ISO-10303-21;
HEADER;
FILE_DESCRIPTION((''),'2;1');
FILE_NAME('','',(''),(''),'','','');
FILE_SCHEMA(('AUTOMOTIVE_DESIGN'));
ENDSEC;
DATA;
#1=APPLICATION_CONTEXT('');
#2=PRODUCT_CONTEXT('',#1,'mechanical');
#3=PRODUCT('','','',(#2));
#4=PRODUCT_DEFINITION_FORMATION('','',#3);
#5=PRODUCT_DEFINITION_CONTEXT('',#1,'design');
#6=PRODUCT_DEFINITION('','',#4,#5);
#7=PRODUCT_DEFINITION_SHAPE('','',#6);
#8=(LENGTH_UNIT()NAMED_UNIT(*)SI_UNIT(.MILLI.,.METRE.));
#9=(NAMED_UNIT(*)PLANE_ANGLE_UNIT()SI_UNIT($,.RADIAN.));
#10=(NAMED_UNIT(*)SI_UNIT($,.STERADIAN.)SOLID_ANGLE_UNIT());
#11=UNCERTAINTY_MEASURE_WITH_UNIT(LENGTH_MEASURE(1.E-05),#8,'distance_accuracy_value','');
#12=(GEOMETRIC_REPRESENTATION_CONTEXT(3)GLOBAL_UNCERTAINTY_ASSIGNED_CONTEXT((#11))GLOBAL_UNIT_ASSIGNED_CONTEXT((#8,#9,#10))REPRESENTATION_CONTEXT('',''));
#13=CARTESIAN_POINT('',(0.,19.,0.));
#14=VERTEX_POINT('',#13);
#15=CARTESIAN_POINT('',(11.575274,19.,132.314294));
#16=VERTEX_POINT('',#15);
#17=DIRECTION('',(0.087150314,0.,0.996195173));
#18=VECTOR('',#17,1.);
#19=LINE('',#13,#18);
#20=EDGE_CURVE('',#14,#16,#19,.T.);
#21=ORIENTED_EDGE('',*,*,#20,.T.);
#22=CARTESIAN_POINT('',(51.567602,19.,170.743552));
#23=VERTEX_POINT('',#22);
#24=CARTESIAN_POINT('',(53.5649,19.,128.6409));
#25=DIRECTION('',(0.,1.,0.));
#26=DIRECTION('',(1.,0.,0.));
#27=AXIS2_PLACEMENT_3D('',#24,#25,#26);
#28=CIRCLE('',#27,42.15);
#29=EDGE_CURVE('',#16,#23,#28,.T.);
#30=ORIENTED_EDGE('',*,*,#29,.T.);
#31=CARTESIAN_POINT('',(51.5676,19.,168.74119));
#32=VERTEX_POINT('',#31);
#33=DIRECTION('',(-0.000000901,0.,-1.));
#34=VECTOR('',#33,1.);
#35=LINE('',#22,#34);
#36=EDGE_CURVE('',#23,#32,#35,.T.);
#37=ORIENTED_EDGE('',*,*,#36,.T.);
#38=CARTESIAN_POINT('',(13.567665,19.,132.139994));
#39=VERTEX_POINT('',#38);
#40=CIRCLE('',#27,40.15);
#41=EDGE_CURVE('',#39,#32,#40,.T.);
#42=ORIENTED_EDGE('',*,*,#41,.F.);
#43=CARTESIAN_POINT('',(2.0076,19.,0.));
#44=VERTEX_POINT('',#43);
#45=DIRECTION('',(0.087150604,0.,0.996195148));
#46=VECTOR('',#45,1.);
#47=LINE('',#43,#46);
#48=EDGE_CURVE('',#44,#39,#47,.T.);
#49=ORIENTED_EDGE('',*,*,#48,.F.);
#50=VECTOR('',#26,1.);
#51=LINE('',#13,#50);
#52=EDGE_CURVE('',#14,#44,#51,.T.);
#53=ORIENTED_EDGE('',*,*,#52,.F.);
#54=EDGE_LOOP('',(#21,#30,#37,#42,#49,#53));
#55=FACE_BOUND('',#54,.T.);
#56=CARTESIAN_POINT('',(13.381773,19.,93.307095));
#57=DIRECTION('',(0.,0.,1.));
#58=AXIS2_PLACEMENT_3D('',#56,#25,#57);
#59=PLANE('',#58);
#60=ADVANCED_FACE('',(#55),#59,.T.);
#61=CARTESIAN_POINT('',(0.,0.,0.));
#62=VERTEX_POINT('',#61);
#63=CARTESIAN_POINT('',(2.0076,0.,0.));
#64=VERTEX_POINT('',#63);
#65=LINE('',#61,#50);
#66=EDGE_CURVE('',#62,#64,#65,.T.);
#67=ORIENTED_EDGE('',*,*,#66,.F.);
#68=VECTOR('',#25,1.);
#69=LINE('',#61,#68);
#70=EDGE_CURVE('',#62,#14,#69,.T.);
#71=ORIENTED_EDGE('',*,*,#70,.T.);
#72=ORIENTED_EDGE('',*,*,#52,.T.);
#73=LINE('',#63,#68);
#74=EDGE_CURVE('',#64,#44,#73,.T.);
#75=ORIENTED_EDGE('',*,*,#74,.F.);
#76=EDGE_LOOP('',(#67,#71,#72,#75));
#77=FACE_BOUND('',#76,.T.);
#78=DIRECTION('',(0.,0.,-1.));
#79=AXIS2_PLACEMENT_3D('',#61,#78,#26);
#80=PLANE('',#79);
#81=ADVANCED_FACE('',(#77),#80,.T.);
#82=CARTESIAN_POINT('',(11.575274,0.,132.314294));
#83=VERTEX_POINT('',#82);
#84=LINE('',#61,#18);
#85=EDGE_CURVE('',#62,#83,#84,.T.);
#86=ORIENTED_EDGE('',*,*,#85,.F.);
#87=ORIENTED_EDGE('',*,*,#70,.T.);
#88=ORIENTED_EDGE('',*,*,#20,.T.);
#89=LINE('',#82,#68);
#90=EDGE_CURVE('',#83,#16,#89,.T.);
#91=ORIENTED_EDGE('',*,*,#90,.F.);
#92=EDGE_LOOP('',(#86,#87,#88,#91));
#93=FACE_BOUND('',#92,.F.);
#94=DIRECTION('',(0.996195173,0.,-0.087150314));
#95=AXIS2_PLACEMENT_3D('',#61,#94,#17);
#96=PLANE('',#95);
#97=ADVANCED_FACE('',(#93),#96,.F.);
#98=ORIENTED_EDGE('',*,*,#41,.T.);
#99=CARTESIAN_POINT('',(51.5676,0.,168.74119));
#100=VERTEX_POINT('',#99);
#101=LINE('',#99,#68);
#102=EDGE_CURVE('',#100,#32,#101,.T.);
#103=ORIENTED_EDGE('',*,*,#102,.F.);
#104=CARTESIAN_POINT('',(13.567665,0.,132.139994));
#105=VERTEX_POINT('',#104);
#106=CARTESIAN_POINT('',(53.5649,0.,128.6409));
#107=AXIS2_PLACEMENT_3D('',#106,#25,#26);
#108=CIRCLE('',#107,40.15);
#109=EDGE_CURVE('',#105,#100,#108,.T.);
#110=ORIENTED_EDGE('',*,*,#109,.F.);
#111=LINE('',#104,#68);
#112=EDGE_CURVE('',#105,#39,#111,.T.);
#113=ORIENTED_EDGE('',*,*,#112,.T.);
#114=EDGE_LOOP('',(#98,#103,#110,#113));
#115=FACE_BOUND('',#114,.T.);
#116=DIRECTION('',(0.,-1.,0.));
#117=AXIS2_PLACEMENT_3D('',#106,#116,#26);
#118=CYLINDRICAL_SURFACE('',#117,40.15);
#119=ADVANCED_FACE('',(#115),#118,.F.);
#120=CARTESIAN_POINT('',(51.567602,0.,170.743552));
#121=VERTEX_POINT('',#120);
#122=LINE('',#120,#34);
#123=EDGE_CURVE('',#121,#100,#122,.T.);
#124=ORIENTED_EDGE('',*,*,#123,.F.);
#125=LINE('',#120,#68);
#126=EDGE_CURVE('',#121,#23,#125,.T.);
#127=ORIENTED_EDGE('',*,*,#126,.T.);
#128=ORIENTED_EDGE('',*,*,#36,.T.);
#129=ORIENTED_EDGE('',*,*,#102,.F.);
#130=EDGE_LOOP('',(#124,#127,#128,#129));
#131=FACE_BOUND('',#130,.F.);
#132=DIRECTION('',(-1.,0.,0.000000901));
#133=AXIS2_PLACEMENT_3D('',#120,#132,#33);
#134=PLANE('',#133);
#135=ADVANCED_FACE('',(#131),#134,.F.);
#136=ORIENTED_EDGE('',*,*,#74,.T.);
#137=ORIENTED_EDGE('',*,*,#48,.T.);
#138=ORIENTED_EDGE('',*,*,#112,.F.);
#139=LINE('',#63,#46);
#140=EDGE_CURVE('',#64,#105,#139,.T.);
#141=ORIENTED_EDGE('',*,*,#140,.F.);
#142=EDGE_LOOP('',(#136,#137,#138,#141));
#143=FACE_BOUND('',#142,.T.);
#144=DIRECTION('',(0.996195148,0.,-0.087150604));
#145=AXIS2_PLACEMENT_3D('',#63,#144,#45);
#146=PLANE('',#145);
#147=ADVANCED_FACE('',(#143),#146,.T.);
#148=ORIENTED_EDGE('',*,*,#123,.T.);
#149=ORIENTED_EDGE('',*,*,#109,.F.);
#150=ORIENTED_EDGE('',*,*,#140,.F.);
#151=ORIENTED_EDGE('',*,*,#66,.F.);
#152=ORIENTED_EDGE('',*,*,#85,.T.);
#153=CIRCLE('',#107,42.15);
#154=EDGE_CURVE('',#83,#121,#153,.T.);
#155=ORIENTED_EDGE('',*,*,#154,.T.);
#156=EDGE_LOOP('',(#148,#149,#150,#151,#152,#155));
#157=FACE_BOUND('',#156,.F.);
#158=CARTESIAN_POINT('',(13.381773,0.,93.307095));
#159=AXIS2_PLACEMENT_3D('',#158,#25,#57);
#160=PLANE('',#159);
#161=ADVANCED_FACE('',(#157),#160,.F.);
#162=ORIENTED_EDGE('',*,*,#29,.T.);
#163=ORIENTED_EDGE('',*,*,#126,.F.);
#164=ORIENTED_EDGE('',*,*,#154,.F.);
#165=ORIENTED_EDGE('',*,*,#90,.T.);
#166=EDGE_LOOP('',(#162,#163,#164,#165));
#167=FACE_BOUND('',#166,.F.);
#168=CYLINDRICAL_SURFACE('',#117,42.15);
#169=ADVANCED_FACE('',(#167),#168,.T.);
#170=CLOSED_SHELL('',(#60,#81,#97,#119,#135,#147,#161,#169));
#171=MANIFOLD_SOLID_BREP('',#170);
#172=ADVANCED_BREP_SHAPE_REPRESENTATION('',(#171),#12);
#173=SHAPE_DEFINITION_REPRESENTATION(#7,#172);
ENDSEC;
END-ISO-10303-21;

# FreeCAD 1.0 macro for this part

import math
import FreeCAD as App
import Part
import Sketcher

V = App.Vector
Q = App.Units.Quantity

doc = App.newDocument("Part")
body = doc.addObject("PartDesign::Body", "Body")

sketch1 = doc.addObject("Sketcher::SketchObject", "Sketch")
body.addObject(sketch1)
sketch1.AttachmentSupport = (doc.XZ_Plane, [""])
sketch1.MapMode = "FlatFace"
sketch1.addGeometry([
    Part.LineSegment(V(11.6, 132.3, 0), V(0, 0, 0)),
    Part.LineSegment(V(0, 0, 0), V(2, 0, 0)),
    Part.LineSegment(V(2, 0, 0), V(13.6, 132.1, 0)),
    Part.ArcOfCircle(Part.Circle(V(53.6, 128.6, 0), V(0, 0, 1), 40.2), math.radians(93), math.radians(175)),
    Part.LineSegment(V(51.6, 168.7, 0), V(51.6, 170.7, 0)),
    Part.ArcOfCircle(Part.Circle(V(53.6, 128.6, 0), V(0, 0, 1), 42.2), math.radians(93), math.radians(175)),
], False)
sketch1.addConstraint([
    Sketcher.Constraint("Coincident", 0, 2, 1, 1),
    Sketcher.Constraint("Coincident", 1, 2, 2, 1),
    Sketcher.Constraint("Tangent", 2, 2, 3, 2),
    Sketcher.Constraint("Coincident", 3, 1, 4, 1),
    Sketcher.Constraint("Coincident", 4, 2, 5, 1),
    Sketcher.Constraint("Tangent", 5, 2, 0, 1),
    Sketcher.Constraint("Horizontal", 1),
    Sketcher.Constraint("Vertical", 4),
    Sketcher.Constraint("Coincident", 0, 2, -1, 1),
    Sketcher.Constraint("Coincident", 5, 3, 3, 3),
    Sketcher.Constraint("Parallel", 0, 2),
    Sketcher.Constraint("Angle", 0, Q("-94.9997 deg")),
    Sketcher.Constraint("Radius", 3, 40.15),
    Sketcher.Constraint("Radius", 5, 42.15),
    Sketcher.Constraint("DistanceX", 2, 2, 3, 1, 38.0),
    Sketcher.Constraint("DistanceY", -1, 1, 2, 2, 132.14),
])
pad1 = doc.addObject("PartDesign::Pad", "Pad")
body.addObject(pad1)
pad1.Profile = sketch1
pad1.Length = 19
pad1.Reversed = True

doc.recompute()
